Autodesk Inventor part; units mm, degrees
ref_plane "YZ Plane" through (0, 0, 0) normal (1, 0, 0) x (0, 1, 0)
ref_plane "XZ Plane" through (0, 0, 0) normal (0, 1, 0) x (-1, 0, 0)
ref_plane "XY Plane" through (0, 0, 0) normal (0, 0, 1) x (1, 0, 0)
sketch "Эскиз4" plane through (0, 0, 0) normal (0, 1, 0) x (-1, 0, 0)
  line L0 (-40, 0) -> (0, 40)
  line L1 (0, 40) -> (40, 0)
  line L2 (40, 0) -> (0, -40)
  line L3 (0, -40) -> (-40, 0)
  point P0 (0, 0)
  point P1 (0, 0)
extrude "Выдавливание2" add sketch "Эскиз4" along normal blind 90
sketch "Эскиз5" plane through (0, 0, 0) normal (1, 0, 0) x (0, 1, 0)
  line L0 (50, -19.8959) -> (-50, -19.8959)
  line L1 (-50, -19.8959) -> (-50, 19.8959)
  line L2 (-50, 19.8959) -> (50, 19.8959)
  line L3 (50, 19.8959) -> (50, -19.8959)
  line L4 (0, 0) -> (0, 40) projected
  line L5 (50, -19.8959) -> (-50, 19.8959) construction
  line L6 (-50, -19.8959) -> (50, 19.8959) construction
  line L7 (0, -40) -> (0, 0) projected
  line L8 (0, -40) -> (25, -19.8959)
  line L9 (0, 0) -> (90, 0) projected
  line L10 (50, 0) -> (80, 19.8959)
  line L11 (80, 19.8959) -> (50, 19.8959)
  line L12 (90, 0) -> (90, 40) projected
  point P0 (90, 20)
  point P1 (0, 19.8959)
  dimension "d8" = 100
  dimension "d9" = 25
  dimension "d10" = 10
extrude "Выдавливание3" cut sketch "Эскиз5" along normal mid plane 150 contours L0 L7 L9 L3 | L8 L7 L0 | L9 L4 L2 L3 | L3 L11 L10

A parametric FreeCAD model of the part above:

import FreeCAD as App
import Part
import Sketcher
from FreeCAD import Vector


def add_polygon(sketch, points):
    """Adds a closed chain of lines whose ends are joined by coincident constraints."""
    first, n = sketch.GeometryCount, len(points)
    for a, b in zip(points, points[1:] + points[:1]):
        sketch.addGeometry(Part.LineSegment(App.Vector(*a, 0), App.Vector(*b, 0)), False)
    for i in range(n):
        sketch.addConstraint(Sketcher.Constraint("Coincident", first + i, 2, first + (i + 1) % n, 1))

doc = App.newDocument("Part")
body = doc.addObject("PartDesign::Body", "Body")

sketch1 = body.newObject("Sketcher::SketchObject", "Sketch")
sketch1.AttachmentSupport = (doc.getObject("XZ_Plane"), [""])
sketch1.MapMode = "FlatFace"
add_polygon(sketch1, [(0, 40), (40, 0), (0, -40), (-40, 0)])
sketch1.addConstraint([
    Sketcher.Constraint("Symmetric", 0, 2, 2, 2, -1, 1),
    Sketcher.Constraint("Symmetric", 1, 2, 3, 2, -1, 1),
    Sketcher.Constraint("PointOnObject", 0, 2, -1),
    Sketcher.Constraint("PointOnObject", 1, 2, -2),
    Sketcher.Constraint("Perpendicular", 0, 1),
    Sketcher.Constraint("DistanceX", -1, 1, 0, 2, 40.0),
])
pad1 = body.newObject("PartDesign::Pad", "Pad")
pad1.Profile = sketch1
pad1.Length = 90
pad1.Reversed = True

sketch2 = body.newObject("Sketcher::SketchObject", "Sketch001")
sketch2.AttachmentSupport = (doc.getObject("YZ_Plane"), [""])
sketch2.MapMode = "FlatFace"
add_polygon(sketch2, [(25, -20), (50, -20), (50, 0), (80, 20), (0, 20), (0, -40)])
sketch2.addConstraint([
    Sketcher.Constraint("Horizontal", 0),
    Sketcher.Constraint("Vertical", 1),
    Sketcher.Constraint("Horizontal", 3),
    Sketcher.Constraint("Vertical", 4),
    Sketcher.Constraint("PointOnObject", 1, 2, -1),
    Sketcher.Constraint("PointOnObject", 3, 2, -2),
    Sketcher.Constraint("DistanceX", 0, 1, 0, 2, 25.0),
    Sketcher.Constraint("DistanceX", -1, 1, 5, 2, 25.0),
    Sketcher.Constraint("DistanceX", 3, 2, 3, 1, 80.0),
    Sketcher.Constraint("DistanceY", 4, 2, -1, 1, 40.0),
    Sketcher.Constraint("DistanceY", 1, 1, 1, 2, 19.896),
    Sketcher.Constraint("DistanceY", 4, 2, 4, 1, 59.896),
])
pocket1 = body.newObject("PartDesign::Pocket", "Pocket")
pocket1.Profile = sketch2
pocket1.Length = 150
pocket1.Midplane = True

doc.recompute()
